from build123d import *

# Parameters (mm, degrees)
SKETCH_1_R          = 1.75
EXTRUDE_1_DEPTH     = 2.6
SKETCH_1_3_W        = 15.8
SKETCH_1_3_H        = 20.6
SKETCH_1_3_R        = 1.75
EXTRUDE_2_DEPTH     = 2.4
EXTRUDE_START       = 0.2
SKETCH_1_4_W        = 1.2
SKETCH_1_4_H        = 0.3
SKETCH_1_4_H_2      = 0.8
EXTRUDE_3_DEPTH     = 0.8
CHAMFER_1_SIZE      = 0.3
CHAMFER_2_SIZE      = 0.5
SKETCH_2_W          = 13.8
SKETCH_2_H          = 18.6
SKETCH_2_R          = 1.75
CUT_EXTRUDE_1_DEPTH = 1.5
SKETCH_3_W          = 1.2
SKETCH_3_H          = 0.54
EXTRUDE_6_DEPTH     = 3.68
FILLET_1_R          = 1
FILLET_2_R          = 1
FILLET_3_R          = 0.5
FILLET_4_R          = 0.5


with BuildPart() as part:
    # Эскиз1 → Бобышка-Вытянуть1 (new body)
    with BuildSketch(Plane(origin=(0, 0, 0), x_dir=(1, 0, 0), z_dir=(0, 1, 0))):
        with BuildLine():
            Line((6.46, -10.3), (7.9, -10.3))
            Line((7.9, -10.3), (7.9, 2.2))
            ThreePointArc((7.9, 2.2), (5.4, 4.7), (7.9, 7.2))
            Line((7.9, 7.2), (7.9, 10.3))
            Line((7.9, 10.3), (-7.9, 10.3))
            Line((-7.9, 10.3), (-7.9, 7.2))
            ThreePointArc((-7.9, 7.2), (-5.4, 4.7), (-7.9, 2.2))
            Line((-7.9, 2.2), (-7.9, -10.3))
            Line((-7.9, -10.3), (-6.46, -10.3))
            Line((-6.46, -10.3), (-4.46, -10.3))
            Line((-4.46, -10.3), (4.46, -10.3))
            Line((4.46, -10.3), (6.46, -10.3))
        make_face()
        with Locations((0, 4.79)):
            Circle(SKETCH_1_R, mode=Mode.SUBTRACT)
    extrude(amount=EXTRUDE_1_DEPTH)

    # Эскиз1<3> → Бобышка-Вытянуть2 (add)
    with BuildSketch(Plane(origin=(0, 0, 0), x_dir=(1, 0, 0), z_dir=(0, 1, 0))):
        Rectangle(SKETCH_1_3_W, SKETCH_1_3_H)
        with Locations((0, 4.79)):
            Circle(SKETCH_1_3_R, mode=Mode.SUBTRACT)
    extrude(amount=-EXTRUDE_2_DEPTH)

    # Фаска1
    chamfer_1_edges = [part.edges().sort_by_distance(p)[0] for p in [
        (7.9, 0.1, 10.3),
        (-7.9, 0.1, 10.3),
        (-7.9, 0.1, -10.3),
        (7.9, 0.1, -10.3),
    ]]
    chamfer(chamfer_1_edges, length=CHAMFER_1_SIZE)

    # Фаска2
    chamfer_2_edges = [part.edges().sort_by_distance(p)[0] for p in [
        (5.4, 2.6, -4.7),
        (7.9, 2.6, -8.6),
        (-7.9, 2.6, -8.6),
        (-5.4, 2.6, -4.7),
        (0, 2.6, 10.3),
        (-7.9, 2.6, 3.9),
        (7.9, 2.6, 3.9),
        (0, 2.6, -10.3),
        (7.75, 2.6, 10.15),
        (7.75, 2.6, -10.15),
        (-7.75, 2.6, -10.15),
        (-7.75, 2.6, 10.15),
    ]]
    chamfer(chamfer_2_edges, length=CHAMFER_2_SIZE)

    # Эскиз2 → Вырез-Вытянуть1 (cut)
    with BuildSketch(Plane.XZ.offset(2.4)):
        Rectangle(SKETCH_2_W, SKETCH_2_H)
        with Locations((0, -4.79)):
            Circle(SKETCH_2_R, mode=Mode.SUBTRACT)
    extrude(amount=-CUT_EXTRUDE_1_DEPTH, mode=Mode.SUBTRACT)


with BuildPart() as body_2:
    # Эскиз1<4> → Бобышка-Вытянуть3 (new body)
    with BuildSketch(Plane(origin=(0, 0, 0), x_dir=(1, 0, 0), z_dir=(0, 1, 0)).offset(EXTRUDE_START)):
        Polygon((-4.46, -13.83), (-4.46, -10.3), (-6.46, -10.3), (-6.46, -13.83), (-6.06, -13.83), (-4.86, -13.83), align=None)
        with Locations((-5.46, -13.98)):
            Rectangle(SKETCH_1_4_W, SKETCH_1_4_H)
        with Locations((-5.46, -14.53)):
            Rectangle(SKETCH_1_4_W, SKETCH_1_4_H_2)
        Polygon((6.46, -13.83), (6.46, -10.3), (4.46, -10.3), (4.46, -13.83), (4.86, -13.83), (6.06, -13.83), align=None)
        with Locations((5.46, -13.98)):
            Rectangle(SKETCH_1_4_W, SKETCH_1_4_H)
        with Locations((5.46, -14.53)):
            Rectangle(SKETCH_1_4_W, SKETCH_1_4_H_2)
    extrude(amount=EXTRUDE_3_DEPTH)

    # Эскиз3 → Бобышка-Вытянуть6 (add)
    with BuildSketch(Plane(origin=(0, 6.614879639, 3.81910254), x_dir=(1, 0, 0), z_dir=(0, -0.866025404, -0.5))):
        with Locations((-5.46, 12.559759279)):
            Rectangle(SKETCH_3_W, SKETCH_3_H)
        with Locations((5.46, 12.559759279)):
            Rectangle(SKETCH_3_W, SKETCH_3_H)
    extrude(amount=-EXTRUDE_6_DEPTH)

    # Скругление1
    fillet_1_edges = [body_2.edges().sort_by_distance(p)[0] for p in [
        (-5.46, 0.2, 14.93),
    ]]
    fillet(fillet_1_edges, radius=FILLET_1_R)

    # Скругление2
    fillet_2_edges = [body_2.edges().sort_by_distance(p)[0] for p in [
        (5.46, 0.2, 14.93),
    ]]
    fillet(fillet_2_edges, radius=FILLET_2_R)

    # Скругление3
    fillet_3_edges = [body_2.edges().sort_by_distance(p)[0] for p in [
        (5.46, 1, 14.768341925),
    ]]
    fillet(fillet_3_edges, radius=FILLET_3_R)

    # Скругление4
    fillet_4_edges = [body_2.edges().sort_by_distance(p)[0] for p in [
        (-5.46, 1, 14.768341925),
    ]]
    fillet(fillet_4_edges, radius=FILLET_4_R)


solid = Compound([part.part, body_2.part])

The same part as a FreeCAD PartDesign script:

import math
import FreeCAD as App
import Part
import Sketcher

V = App.Vector
Q = App.Units.Quantity


def edges_at(feature, points):
    """Names of the edges that pass closest to the given points."""
    edges = feature.Shape.Edges
    near = lambda p: min(range(len(edges)), key=lambda i: edges[i].distToShape(Part.Vertex(*p))[0])
    return sorted({f"Edge{near(p) + 1}" for p in points})

doc = App.newDocument("Part")
params = doc.addObject("Spreadsheet::Sheet", "Params")
for row, (alias, value) in enumerate([
    ("sketch1_diameter", "3.5 mm"),
    ("sketch1_radius", "2.5 mm"),
    ("sketch1_width", "15.8 mm"),
    ("sketch1_height", "12.5 mm"),
    ("sketch1_height2", "3.1 mm"),
    ("pad1_length", "2.6 mm"),
    ("sketch2_diameter", "3.5 mm"),
    ("sketch2_width", "15.8 mm"),
    ("sketch2_height", "20.6 mm"),
    ("pad2_length", "2.4 mm"),
    ("chamfer_size", "0.3 mm"),
    ("chamfer2_size", "0.5 mm"),
    ("sketch3_diameter", "3.5 mm"),
    ("sketch3_width", "13.8 mm"),
    ("sketch3_height", "18.6 mm"),
    ("pocket1_length", "1.5 mm"),
    ("sketch4_width", "2 mm"),
    ("sketch4_width2", "0.4 mm"),
    ("sketch4_height", "1.1 mm"),
    ("sketch4_height2", "3.53 mm"),
    ("pad3_length", "0.8 mm"),
    ("sketch5_width", "1.2 mm"),
    ("sketch5_height", "0.54 mm"),
    ("pad4_length", "3.68 mm"),
    ("fillet_radius", "1 mm"),
    ("fillet2_radius", "1 mm"),
    ("fillet3_radius", "0.5 mm"),
    ("fillet4_radius", "0.5 mm"),
], start=1):
    params.set(f"A{row}", alias)
    params.set(f"B{row}", "=" + value)
    params.setAlias(f"B{row}", alias)

body = doc.addObject("PartDesign::Body", "Body")

sketch1 = doc.addObject("Sketcher::SketchObject", "Sketch")
body.addObject(sketch1)
sketch1.AttachmentSupport = (doc.XZ_Plane, [""])
sketch1.MapMode = "FlatFace"
sketch1.addGeometry([
    Part.LineSegment(V(7.9, 10.3, 0), V(7.9, -2.2, 0)),
    Part.ArcOfCircle(Part.Circle(V(7.9, -4.7, 0), V(0, 0, 1), 2.5), math.radians(90), math.radians(270)),
    Part.LineSegment(V(7.9, -7.2, 0), V(7.9, -10.3, 0)),
    Part.LineSegment(V(7.9, -10.3, 0), V(-7.9, -10.3, 0)),
    Part.LineSegment(V(-7.9, -10.3, 0), V(-7.9, -7.2, 0)),
    Part.ArcOfCircle(Part.Circle(V(-7.9, -4.7, 0), V(0, 0, 1), 2.5), math.radians(-90), math.radians(90)),
    Part.LineSegment(V(-7.9, -2.2, 0), V(-7.9, 10.3, 0)),
    Part.LineSegment(V(-7.9, 10.3, 0), V(7.9, 10.3, 0)),
    Part.Circle(V(0, -4.8, 0), V(0, 0, 1), 1.8),
], False)
sketch1.addConstraint([
    Sketcher.Constraint("Coincident", 0, 2, 1, 1),
    Sketcher.Constraint("Coincident", 1, 2, 2, 1),
    Sketcher.Constraint("Coincident", 2, 2, 3, 1),
    Sketcher.Constraint("Coincident", 3, 2, 4, 1),
    Sketcher.Constraint("Coincident", 4, 2, 5, 1),
    Sketcher.Constraint("Coincident", 5, 2, 6, 1),
    Sketcher.Constraint("Coincident", 6, 2, 7, 1),
    Sketcher.Constraint("Coincident", 7, 2, 0, 1),
    Sketcher.Constraint("Vertical", 0),
    Sketcher.Constraint("Vertical", 2),
    Sketcher.Constraint("Horizontal", 3),
    Sketcher.Constraint("Vertical", 4),
    Sketcher.Constraint("Vertical", 6),
    Sketcher.Constraint("Horizontal", 7),
    Sketcher.Constraint("Equal", 1, 5),
    Sketcher.Constraint("Symmetric", 2, 2, 6, 2, -1, 1),
    Sketcher.Constraint("Symmetric", 1, 3, 5, 3, -2),
    Sketcher.Constraint("PointOnObject", 8, 3, -2),
    Sketcher.Constraint("Vertical", 1, 3, 0, 2),
    Sketcher.Constraint("Vertical", 0, 2, 1, 2),
    Sketcher.Constraint("Vertical", 5, 3, 3, 2),
    Sketcher.Constraint("Diameter", 8, Q("3.5 mm")),
    Sketcher.Constraint("Radius", 1, Q("2.5 mm")),
    Sketcher.Constraint("DistanceX", 3, 2, 3, 1, Q("15.8 mm")),
    Sketcher.Constraint("DistanceY", 0, 2, 0, 1, Q("12.5 mm")),
    Sketcher.Constraint("DistanceY", 2, 2, 2, 1, Q("3.1 mm")),
    Sketcher.Constraint("DistanceY", 8, 3, -1, 1, Q("4.79 mm")),
])
sketch1.setExpression("Constraints[21]", "Params.sketch1_diameter")
sketch1.setExpression("Constraints[22]", "Params.sketch1_radius")
sketch1.setExpression("Constraints[23]", "Params.sketch1_width")
sketch1.setExpression("Constraints[24]", "Params.sketch1_height")
sketch1.setExpression("Constraints[25]", "Params.sketch1_height2")
pad1 = doc.addObject("PartDesign::Pad", "Pad")
body.addObject(pad1)
pad1.Profile = sketch1
pad1.setExpression("Length", "Params.pad1_length")
pad1.Reversed = True

sketch2 = doc.addObject("Sketcher::SketchObject", "Sketch001")
body.addObject(sketch2)
sketch2.AttachmentSupport = (doc.XZ_Plane, [""])
sketch2.MapMode = "FlatFace"
sketch2.addGeometry([
    Part.LineSegment(V(-7.9, -10.3, 0), V(-7.9, 10.3, 0)),
    Part.LineSegment(V(-7.9, 10.3, 0), V(7.9, 10.3, 0)),
    Part.LineSegment(V(7.9, 10.3, 0), V(7.9, -10.3, 0)),
    Part.LineSegment(V(7.9, -10.3, 0), V(-7.9, -10.3, 0)),
    Part.Circle(V(0, -4.8, 0), V(0, 0, 1), 1.8),
], False)
sketch2.addConstraint([
    Sketcher.Constraint("Coincident", 0, 2, 1, 1),
    Sketcher.Constraint("Coincident", 1, 2, 2, 1),
    Sketcher.Constraint("Coincident", 2, 2, 3, 1),
    Sketcher.Constraint("Coincident", 3, 2, 0, 1),
    Sketcher.Constraint("Vertical", 0),
    Sketcher.Constraint("Horizontal", 1),
    Sketcher.Constraint("Vertical", 2),
    Sketcher.Constraint("Horizontal", 3),
    Sketcher.Constraint("Symmetric", 0, 2, 2, 2, -1, 1),
    Sketcher.Constraint("PointOnObject", 4, 3, -2),
    Sketcher.Constraint("Diameter", 4, Q("3.5 mm")),
    Sketcher.Constraint("DistanceX", 1, 1, 1, 2, Q("15.8 mm")),
    Sketcher.Constraint("DistanceY", 0, 1, 0, 2, Q("20.6 mm")),
    Sketcher.Constraint("DistanceY", 4, 3, -1, 1, Q("4.79 mm")),
])
sketch2.setExpression("Constraints[10]", "Params.sketch2_diameter")
sketch2.setExpression("Constraints[11]", "Params.sketch2_width")
sketch2.setExpression("Constraints[12]", "Params.sketch2_height")
pad2 = doc.addObject("PartDesign::Pad", "Pad001")
body.addObject(pad2)
pad2.Profile = sketch2
pad2.setExpression("Length", "Params.pad2_length")
doc.recompute()

chamfer = doc.addObject("PartDesign::Chamfer", "Chamfer")
body.addObject(chamfer)
chamfer.Base = (pad2, edges_at(pad2, [
    (7.9, 0.1, 10.3),
    (-7.9, 0.1, 10.3),
    (-7.9, 0.1, -10.3),
    (7.9, 0.1, -10.3),
]))
chamfer.setExpression("Size", "Params.chamfer_size")
doc.recompute()

chamfer2 = doc.addObject("PartDesign::Chamfer", "Chamfer001")
body.addObject(chamfer2)
chamfer2.Base = (chamfer, edges_at(chamfer, [
    (5.4, 2.6, -4.7),
    (7.9, 2.6, -8.6),
    (-7.9, 2.6, -8.6),
    (-5.4, 2.6, -4.7),
    (0, 2.6, 10.3),
    (-7.9, 2.6, 3.9),
    (7.9, 2.6, 3.9),
    (0, 2.6, -10.3),
    (7.75, 2.6, 10.15),
    (7.75, 2.6, -10.15),
    (-7.75, 2.6, -10.15),
    (-7.75, 2.6, 10.15),
]))
chamfer2.setExpression("Size", "Params.chamfer2_size")

sketch3 = doc.addObject("Sketcher::SketchObject", "Sketch002")
body.addObject(sketch3)
sketch3.AttachmentSupport = (doc.XZ_Plane, [""])
sketch3.MapMode = "FlatFace"
sketch3.AttachmentOffset = App.Placement(V(0, 0, 2.4), App.Rotation())
sketch3.addGeometry([
    Part.LineSegment(V(-6.9, 9.3, 0), V(-6.9, -9.3, 0)),
    Part.LineSegment(V(-6.9, -9.3, 0), V(6.9, -9.3, 0)),
    Part.LineSegment(V(6.9, -9.3, 0), V(6.9, 9.3, 0)),
    Part.LineSegment(V(6.9, 9.3, 0), V(-6.9, 9.3, 0)),
    Part.Circle(V(0, -4.8, 0), V(0, 0, 1), 1.8),
], False)
sketch3.addConstraint([
    Sketcher.Constraint("Coincident", 0, 2, 1, 1),
    Sketcher.Constraint("Coincident", 1, 2, 2, 1),
    Sketcher.Constraint("Coincident", 2, 2, 3, 1),
    Sketcher.Constraint("Coincident", 3, 2, 0, 1),
    Sketcher.Constraint("Vertical", 0),
    Sketcher.Constraint("Horizontal", 1),
    Sketcher.Constraint("Vertical", 2),
    Sketcher.Constraint("Horizontal", 3),
    Sketcher.Constraint("Symmetric", 0, 2, 2, 2, -1, 1),
    Sketcher.Constraint("PointOnObject", 4, 3, -2),
    Sketcher.Constraint("Diameter", 4, Q("3.5 mm")),
    Sketcher.Constraint("DistanceX", 1, 1, 1, 2, Q("13.8 mm")),
    Sketcher.Constraint("DistanceY", 0, 2, 0, 1, Q("18.6 mm")),
    Sketcher.Constraint("DistanceY", 4, 3, -1, 1, Q("4.79 mm")),
])
sketch3.setExpression("Constraints[10]", "Params.sketch3_diameter")
sketch3.setExpression("Constraints[11]", "Params.sketch3_width")
sketch3.setExpression("Constraints[12]", "Params.sketch3_height")
pocket1 = doc.addObject("PartDesign::Pocket", "Pocket")
body.addObject(pocket1)
pocket1.Profile = sketch3
pocket1.setExpression("Length", "Params.pocket1_length")
body2 = doc.addObject("PartDesign::Body", "Body001")
body2.AllowCompound = True

sketch4 = doc.addObject("Sketcher::SketchObject", "Sketch003")
body2.addObject(sketch4)
sketch4.AttachmentSupport = (doc.getObject("XZ_Plane001"), [""])
sketch4.MapMode = "FlatFace"
sketch4.AttachmentOffset = App.Placement(V(0, 0, -0.2), App.Rotation())
sketch4.addGeometry([
    Part.LineSegment(V(-4.46, 13.83, 0), V(-4.46, 10.3, 0)),
    Part.LineSegment(V(-4.46, 10.3, 0), V(-6.46, 10.3, 0)),
    Part.LineSegment(V(-6.46, 10.3, 0), V(-6.46, 13.83, 0)),
    Part.LineSegment(V(-6.46, 13.83, 0), V(-6.06, 13.83, 0)),
    Part.LineSegment(V(-6.06, 13.83, 0), V(-6.06, 14.93, 0)),
    Part.LineSegment(V(-6.06, 14.93, 0), V(-4.86, 14.93, 0)),
    Part.LineSegment(V(-4.86, 14.93, 0), V(-4.86, 13.83, 0)),
    Part.LineSegment(V(-4.86, 13.83, 0), V(-4.46, 13.83, 0)),
    Part.LineSegment(V(6.46, 13.83, 0), V(6.46, 10.3, 0)),
    Part.LineSegment(V(6.46, 10.3, 0), V(4.46, 10.3, 0)),
    Part.LineSegment(V(4.46, 10.3, 0), V(4.46, 13.83, 0)),
    Part.LineSegment(V(4.46, 13.83, 0), V(4.86, 13.83, 0)),
    Part.LineSegment(V(4.86, 13.83, 0), V(4.86, 14.93, 0)),
    Part.LineSegment(V(4.86, 14.93, 0), V(6.06, 14.93, 0)),
    Part.LineSegment(V(6.06, 14.93, 0), V(6.06, 13.83, 0)),
    Part.LineSegment(V(6.06, 13.83, 0), V(6.46, 13.83, 0)),
], False)
sketch4.addConstraint([
    Sketcher.Constraint("Coincident", 0, 2, 1, 1),
    Sketcher.Constraint("Coincident", 1, 2, 2, 1),
    Sketcher.Constraint("Coincident", 2, 2, 3, 1),
    Sketcher.Constraint("Coincident", 3, 2, 4, 1),
    Sketcher.Constraint("Coincident", 4, 2, 5, 1),
    Sketcher.Constraint("Coincident", 5, 2, 6, 1),
    Sketcher.Constraint("Coincident", 6, 2, 7, 1),
    Sketcher.Constraint("Coincident", 7, 2, 0, 1),
    Sketcher.Constraint("Coincident", 8, 2, 9, 1),
    Sketcher.Constraint("Coincident", 9, 2, 10, 1),
    Sketcher.Constraint("Coincident", 10, 2, 11, 1),
    Sketcher.Constraint("Coincident", 11, 2, 12, 1),
    Sketcher.Constraint("Coincident", 12, 2, 13, 1),
    Sketcher.Constraint("Coincident", 13, 2, 14, 1),
    Sketcher.Constraint("Coincident", 14, 2, 15, 1),
    Sketcher.Constraint("Coincident", 15, 2, 8, 1),
    Sketcher.Constraint("Vertical", 0),
    Sketcher.Constraint("Horizontal", 1),
    Sketcher.Constraint("Vertical", 2),
    Sketcher.Constraint("Horizontal", 3),
    Sketcher.Constraint("Vertical", 4),
    Sketcher.Constraint("Horizontal", 5),
    Sketcher.Constraint("Vertical", 6),
    Sketcher.Constraint("Horizontal", 7),
    Sketcher.Constraint("Vertical", 8),
    Sketcher.Constraint("Horizontal", 9),
    Sketcher.Constraint("Vertical", 10),
    Sketcher.Constraint("Horizontal", 11),
    Sketcher.Constraint("Vertical", 12),
    Sketcher.Constraint("Horizontal", 13),
    Sketcher.Constraint("Vertical", 14),
    Sketcher.Constraint("Horizontal", 15),
    Sketcher.Constraint("Symmetric", 1, 2, 8, 2, -2),
    Sketcher.Constraint("Symmetric", 7, 2, 10, 2, -2),
    Sketcher.Constraint("Symmetric", 5, 2, 12, 2, -2),
    Sketcher.Constraint("Symmetric", 3, 2, 14, 2, -2),
    Sketcher.Constraint("Horizontal", 3, 2, 6, 2),
    Sketcher.Constraint("Equal", 3, 7),
    Sketcher.Constraint("DistanceX", 1, 2, 1, 1, Q("2 mm")),
    Sketcher.Constraint("DistanceX", 3, 1, 3, 2, Q("0.4 mm")),
    Sketcher.Constraint("DistanceY", 4, 1, 4, 2, Q("1.1 mm")),
    Sketcher.Constraint("DistanceY", 0, 2, 0, 1, Q("3.53 mm")),
    Sketcher.Constraint("DistanceY", -1, 1, 0, 2, Q("10.3 mm")),
    Sketcher.Constraint("DistanceX", 0, 2, -1, 1, Q("4.46 mm")),
])
sketch4.setExpression("Constraints[38]", "Params.sketch4_width")
sketch4.setExpression("Constraints[39]", "Params.sketch4_width2")
sketch4.setExpression("Constraints[40]", "Params.sketch4_height")
sketch4.setExpression("Constraints[41]", "Params.sketch4_height2")
pad3 = doc.addObject("PartDesign::Pad", "Pad002")
body2.addObject(pad3)
pad3.Profile = sketch4
pad3.setExpression("Length", "Params.pad3_length")
pad3.Reversed = True

sketch5 = doc.addObject("Sketcher::SketchObject", "Sketch004")
body2.addObject(sketch5)
sketch5.Placement = App.Placement(V(0, 6.61488, 3.819103), App.Rotation(V(1, 0, 0), V(0, -0.5, 0.866025404), V(0, -0.866025404, -0.5), "ZXY"))
sketch5.addGeometry([
    Part.LineSegment(V(-6.1, 12.8, 0), V(-6.1, 12.3, 0)),
    Part.LineSegment(V(-6.1, 12.3, 0), V(-4.9, 12.3, 0)),
    Part.LineSegment(V(-4.9, 12.3, 0), V(-4.9, 12.8, 0)),
    Part.LineSegment(V(-4.9, 12.8, 0), V(-6.1, 12.8, 0)),
    Part.LineSegment(V(4.9, 12.8, 0), V(4.9, 12.3, 0)),
    Part.LineSegment(V(4.9, 12.3, 0), V(6.1, 12.3, 0)),
    Part.LineSegment(V(6.1, 12.3, 0), V(6.1, 12.8, 0)),
    Part.LineSegment(V(6.1, 12.8, 0), V(4.9, 12.8, 0)),
], False)
sketch5.addConstraint([
    Sketcher.Constraint("Coincident", 0, 2, 1, 1),
    Sketcher.Constraint("Coincident", 1, 2, 2, 1),
    Sketcher.Constraint("Coincident", 2, 2, 3, 1),
    Sketcher.Constraint("Coincident", 3, 2, 0, 1),
    Sketcher.Constraint("Coincident", 4, 2, 5, 1),
    Sketcher.Constraint("Coincident", 5, 2, 6, 1),
    Sketcher.Constraint("Coincident", 6, 2, 7, 1),
    Sketcher.Constraint("Coincident", 7, 2, 4, 1),
    Sketcher.Constraint("Vertical", 0),
    Sketcher.Constraint("Horizontal", 1),
    Sketcher.Constraint("Vertical", 2),
    Sketcher.Constraint("Horizontal", 3),
    Sketcher.Constraint("Vertical", 4),
    Sketcher.Constraint("Horizontal", 5),
    Sketcher.Constraint("Vertical", 6),
    Sketcher.Constraint("Horizontal", 7),
    Sketcher.Constraint("Symmetric", 1, 2, 4, 2, -2),
    Sketcher.Constraint("Symmetric", 3, 2, 6, 2, -2),
    Sketcher.Constraint("DistanceX", 1, 1, 1, 2, Q("1.2 mm")),
    Sketcher.Constraint("DistanceY", 0, 2, 0, 1, Q("0.54 mm")),
    Sketcher.Constraint("DistanceX", 0, 2, -1, 1, Q("6.06 mm")),
    Sketcher.Constraint("DistanceY", -1, 1, 0, 2, Q("12.289759 mm")),
])
sketch5.setExpression("Constraints[18]", "Params.sketch5_width")
sketch5.setExpression("Constraints[19]", "Params.sketch5_height")
pad4 = doc.addObject("PartDesign::Pad", "Pad003")
body2.addObject(pad4)
pad4.Profile = sketch5
pad4.setExpression("Length", "Params.pad4_length")
pad4.Reversed = True
doc.recompute()

fillet = doc.addObject("PartDesign::Fillet", "Fillet")
body2.addObject(fillet)
fillet.Base = (pad4, edges_at(pad4, [(-5.46, 0.2, 14.93)]))
fillet.setExpression("Radius", "Params.fillet_radius")
doc.recompute()

fillet2 = doc.addObject("PartDesign::Fillet", "Fillet001")
body2.addObject(fillet2)
fillet2.Base = (fillet, edges_at(fillet, [(5.46, 0.2, 14.93)]))
fillet2.setExpression("Radius", "Params.fillet2_radius")
doc.recompute()

fillet3 = doc.addObject("PartDesign::Fillet", "Fillet002")
body2.addObject(fillet3)
fillet3.Base = (fillet2, edges_at(fillet2, [(5.46, 1, 14.768)]))
fillet3.setExpression("Radius", "Params.fillet3_radius")
doc.recompute()

fillet4 = doc.addObject("PartDesign::Fillet", "Fillet003")
body2.addObject(fillet4)
fillet4.Base = (fillet3, edges_at(fillet3, [(-5.46, 1, 14.768)]))
fillet4.setExpression("Radius", "Params.fillet4_radius")

doc.recompute()
